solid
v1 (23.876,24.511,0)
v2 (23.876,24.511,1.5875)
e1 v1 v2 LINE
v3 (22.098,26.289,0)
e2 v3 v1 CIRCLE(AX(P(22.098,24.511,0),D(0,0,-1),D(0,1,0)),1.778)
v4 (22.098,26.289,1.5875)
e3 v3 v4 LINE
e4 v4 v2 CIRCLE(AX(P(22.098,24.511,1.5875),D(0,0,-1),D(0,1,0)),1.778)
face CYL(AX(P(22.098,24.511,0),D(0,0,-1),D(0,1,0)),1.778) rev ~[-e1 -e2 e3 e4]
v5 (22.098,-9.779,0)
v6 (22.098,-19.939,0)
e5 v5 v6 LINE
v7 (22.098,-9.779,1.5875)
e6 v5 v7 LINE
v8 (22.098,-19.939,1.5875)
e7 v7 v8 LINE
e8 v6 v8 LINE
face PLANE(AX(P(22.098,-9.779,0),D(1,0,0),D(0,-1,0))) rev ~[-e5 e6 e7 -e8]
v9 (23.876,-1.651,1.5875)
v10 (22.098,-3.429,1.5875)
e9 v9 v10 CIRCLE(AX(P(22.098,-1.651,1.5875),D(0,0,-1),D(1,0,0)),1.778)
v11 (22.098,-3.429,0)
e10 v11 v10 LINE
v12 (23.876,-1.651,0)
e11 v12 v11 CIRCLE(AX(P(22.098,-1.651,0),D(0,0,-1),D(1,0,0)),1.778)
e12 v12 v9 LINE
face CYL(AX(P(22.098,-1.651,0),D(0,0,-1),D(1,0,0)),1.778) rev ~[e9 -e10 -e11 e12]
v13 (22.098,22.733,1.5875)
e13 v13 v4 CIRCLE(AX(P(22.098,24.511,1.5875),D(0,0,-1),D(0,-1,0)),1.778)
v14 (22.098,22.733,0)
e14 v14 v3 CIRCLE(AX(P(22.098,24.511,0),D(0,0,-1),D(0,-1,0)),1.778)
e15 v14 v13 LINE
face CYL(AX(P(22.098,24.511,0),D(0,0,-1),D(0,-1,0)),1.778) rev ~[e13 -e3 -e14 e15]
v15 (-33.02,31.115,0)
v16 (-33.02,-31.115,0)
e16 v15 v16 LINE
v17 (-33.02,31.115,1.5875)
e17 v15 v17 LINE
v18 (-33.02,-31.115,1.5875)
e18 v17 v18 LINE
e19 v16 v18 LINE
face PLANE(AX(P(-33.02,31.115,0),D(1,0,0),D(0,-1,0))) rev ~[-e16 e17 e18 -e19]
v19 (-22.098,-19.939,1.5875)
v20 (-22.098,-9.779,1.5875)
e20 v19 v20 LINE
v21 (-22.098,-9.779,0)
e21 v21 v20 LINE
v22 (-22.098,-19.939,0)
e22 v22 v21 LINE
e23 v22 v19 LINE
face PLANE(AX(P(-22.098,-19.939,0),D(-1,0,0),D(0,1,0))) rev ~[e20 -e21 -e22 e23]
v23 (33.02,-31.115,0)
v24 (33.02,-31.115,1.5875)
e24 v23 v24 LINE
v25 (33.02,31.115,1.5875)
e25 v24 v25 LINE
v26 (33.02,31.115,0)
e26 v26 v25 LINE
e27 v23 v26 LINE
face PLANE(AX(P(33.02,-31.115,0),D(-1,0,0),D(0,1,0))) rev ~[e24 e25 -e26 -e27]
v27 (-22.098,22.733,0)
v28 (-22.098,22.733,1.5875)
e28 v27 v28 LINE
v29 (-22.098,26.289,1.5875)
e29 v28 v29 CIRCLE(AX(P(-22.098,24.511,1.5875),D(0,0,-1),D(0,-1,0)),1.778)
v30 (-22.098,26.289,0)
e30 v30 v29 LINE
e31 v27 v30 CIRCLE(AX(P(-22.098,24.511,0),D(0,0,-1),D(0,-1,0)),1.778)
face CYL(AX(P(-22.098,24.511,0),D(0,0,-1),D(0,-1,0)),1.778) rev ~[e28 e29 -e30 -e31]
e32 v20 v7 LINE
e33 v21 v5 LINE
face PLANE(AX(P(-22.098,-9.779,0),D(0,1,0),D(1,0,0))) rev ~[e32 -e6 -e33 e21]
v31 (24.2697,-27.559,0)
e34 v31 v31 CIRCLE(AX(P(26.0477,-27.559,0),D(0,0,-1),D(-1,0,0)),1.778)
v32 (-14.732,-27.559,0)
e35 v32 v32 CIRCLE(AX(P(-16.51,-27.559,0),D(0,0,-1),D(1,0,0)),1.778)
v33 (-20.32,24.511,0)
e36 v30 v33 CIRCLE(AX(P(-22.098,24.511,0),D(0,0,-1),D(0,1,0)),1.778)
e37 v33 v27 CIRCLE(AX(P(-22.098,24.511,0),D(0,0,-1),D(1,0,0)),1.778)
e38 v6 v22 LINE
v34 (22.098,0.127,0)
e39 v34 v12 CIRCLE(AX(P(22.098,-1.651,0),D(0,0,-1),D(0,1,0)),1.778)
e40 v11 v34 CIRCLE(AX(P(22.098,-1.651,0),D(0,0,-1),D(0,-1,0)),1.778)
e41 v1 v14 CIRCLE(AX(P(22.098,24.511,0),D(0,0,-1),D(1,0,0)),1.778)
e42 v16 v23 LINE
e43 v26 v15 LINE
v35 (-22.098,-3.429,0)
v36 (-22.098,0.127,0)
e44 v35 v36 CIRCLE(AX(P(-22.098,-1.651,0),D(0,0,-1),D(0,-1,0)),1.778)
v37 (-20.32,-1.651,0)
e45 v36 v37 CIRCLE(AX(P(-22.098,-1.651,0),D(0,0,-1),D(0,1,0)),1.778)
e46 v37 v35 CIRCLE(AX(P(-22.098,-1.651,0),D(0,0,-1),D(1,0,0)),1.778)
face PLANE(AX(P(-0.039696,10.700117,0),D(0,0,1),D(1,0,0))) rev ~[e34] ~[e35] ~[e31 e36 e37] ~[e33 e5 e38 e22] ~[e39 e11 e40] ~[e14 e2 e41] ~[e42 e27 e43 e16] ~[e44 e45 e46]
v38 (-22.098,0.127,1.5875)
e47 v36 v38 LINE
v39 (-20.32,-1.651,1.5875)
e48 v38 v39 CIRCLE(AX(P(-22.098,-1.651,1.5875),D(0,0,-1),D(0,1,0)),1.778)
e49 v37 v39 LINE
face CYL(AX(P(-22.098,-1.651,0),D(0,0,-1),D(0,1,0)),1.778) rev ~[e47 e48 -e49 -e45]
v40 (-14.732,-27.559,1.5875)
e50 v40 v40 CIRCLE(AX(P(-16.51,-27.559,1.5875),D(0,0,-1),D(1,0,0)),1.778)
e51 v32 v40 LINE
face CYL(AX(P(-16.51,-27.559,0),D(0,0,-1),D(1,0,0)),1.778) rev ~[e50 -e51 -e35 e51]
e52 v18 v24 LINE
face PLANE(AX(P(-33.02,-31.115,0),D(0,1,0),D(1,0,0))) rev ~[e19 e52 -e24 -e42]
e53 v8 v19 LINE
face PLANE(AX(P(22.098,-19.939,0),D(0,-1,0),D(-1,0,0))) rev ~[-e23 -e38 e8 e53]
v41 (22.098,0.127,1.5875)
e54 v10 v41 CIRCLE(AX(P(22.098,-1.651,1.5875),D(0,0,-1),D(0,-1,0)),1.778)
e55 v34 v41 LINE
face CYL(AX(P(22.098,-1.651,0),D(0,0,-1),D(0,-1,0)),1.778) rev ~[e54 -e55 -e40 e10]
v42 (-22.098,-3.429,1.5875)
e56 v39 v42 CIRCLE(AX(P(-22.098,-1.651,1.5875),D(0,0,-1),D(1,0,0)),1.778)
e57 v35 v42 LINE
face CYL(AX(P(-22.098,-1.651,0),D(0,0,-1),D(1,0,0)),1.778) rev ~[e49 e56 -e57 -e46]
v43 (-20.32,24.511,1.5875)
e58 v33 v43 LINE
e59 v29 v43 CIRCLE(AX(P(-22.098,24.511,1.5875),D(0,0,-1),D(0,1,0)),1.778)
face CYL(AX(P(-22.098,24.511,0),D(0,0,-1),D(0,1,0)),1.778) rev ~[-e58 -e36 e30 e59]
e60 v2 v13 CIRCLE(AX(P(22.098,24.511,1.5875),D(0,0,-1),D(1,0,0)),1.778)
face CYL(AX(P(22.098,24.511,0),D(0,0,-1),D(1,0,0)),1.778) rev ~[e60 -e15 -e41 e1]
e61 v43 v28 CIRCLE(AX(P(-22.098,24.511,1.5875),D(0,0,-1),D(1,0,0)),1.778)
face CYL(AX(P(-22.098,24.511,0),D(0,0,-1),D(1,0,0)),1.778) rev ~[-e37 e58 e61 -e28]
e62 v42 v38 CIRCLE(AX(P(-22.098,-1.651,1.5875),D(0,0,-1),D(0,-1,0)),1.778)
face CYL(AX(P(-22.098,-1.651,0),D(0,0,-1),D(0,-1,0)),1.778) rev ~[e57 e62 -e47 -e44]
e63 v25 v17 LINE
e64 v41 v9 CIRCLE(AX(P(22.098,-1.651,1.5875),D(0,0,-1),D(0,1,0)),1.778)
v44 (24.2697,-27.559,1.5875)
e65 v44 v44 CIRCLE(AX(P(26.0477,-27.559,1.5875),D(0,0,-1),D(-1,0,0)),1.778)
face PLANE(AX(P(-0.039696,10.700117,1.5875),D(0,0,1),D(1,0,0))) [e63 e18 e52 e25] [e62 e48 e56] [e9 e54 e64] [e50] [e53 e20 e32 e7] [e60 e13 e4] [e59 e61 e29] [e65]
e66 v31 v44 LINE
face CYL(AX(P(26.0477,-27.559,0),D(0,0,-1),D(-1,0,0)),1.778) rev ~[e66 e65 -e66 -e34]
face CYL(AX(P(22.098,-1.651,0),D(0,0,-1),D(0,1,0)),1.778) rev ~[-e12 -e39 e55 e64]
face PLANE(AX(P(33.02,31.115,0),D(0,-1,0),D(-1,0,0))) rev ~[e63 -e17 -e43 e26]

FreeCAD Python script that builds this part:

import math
import FreeCAD as App
import Part
import Sketcher
Q = App.Units.Quantity


def add_polygon(sketch, points):
    """Adds a closed chain of lines whose ends are joined by coincident constraints."""
    first, n = sketch.GeometryCount, len(points)
    for a, b in zip(points, points[1:] + points[:1]):
        sketch.addGeometry(Part.LineSegment(App.Vector(*a, 0), App.Vector(*b, 0)), False)
    for i in range(n):
        sketch.addConstraint(Sketcher.Constraint("Coincident", first + i, 2, first + (i + 1) % n, 1))

doc = App.newDocument("Part")
params = doc.addObject("Spreadsheet::Sheet", "Params")
for row, (alias, value) in enumerate([
    ("sketch1_diameter", "0.14 in"),
    ("sketch1_width", "2.6 in"),
    ("sketch1_height", "0.4 in"),
    ("sketch1_width2", "1.74 in"),
    ("sketch1_height2", "2.45 in"),
    ("pad1_length", "0.0625 in"),
], start=1):
    params.set(f"A{row}", alias)
    params.set(f"B{row}", "=" + value)
    params.setAlias(f"B{row}", alias)

body = doc.addObject("PartDesign::Body", "Body")

# Sketch on XY plane
sketch1 = doc.addObject("Sketcher::SketchObject", "Sketch")
body.addObject(sketch1)
sketch1.AttachmentSupport = (doc.XY_Plane, [""])
sketch1.MapMode = "FlatFace"
add_polygon(sketch1, [(-33.02, 31.115), (-33.02, -31.115), (33.02, -31.115), (33.02, 31.115)])  # lines 0-3
sketch1.addGeometry(Part.ArcOfCircle(Part.Circle(App.Vector(22.098, 24.511, 0), App.Vector(0, 0, 1), 1.778), math.radians(90), math.radians(270)), False)  # 4
sketch1.addGeometry(Part.ArcOfCircle(Part.Circle(App.Vector(22.098, 24.511, 0), App.Vector(0, 0, 1), 1.778), math.radians(0), math.radians(90)), False)  # 5
sketch1.addGeometry(Part.ArcOfCircle(Part.Circle(App.Vector(22.098, 24.511, 0), App.Vector(0, 0, 1), 1.778), math.radians(-90), math.radians(0)), False)  # 6
sketch1.addGeometry(Part.ArcOfCircle(Part.Circle(App.Vector(22.098, -1.651, 0), App.Vector(0, 0, 1), 1.778), math.radians(90), math.radians(270)), False)  # 7
sketch1.addGeometry(Part.ArcOfCircle(Part.Circle(App.Vector(22.098, -1.651, 0), App.Vector(0, 0, 1), 1.778), math.radians(0), math.radians(90)), False)  # 8
sketch1.addGeometry(Part.ArcOfCircle(Part.Circle(App.Vector(22.098, -1.651, 0), App.Vector(0, 0, 1), 1.778), math.radians(-90), math.radians(0)), False)  # 9
add_polygon(sketch1, [(-22.098, -9.779), (22.098, -9.779), (22.098, -19.939), (-22.098, -19.939)])  # lines 10-13
sketch1.addGeometry(Part.Circle(App.Vector(26.0477, -27.559, 0), App.Vector(0, 0, 1), 1.778), False)  # 14
sketch1.addGeometry(Part.ArcOfCircle(Part.Circle(App.Vector(-22.098, -1.651, 0), App.Vector(0, 0, 1), 1.778), math.radians(0), math.radians(90)), False)  # 15
sketch1.addGeometry(Part.ArcOfCircle(Part.Circle(App.Vector(-22.098, -1.651, 0), App.Vector(0, 0, 1), 1.778), math.radians(-90), math.radians(0)), False)  # 16
sketch1.addGeometry(Part.ArcOfCircle(Part.Circle(App.Vector(-22.098, -1.651, 0), App.Vector(0, 0, 1), 1.778), math.radians(90), math.radians(270)), False)  # 17
sketch1.addGeometry(Part.Circle(App.Vector(-16.51, -27.559, 0), App.Vector(0, 0, 1), 1.778), False)  # 18
sketch1.addGeometry(Part.ArcOfCircle(Part.Circle(App.Vector(-22.098, 24.511, 0), App.Vector(0, 0, 1), 1.778), math.radians(0), math.radians(90)), False)  # 19
sketch1.addGeometry(Part.ArcOfCircle(Part.Circle(App.Vector(-22.098, 24.511, 0), App.Vector(0, 0, 1), 1.778), math.radians(-90), math.radians(0)), False)  # 20
sketch1.addGeometry(Part.ArcOfCircle(Part.Circle(App.Vector(-22.098, 24.511, 0), App.Vector(0, 0, 1), 1.778), math.radians(90), math.radians(270)), False)  # 21
sketch1.addConstraint(Sketcher.Constraint("Tangent", 4, 1, 5, 2))
sketch1.addConstraint(Sketcher.Constraint("Tangent", 5, 1, 6, 2))
sketch1.addConstraint(Sketcher.Constraint("Tangent", 6, 1, 4, 2))
sketch1.addConstraint(Sketcher.Constraint("Tangent", 7, 1, 8, 2))
sketch1.addConstraint(Sketcher.Constraint("Tangent", 8, 1, 9, 2))
sketch1.addConstraint(Sketcher.Constraint("Tangent", 9, 1, 7, 2))
sketch1.addConstraint(Sketcher.Constraint("Tangent", 15, 1, 16, 2))
sketch1.addConstraint(Sketcher.Constraint("Tangent", 16, 1, 17, 2))
sketch1.addConstraint(Sketcher.Constraint("Tangent", 17, 1, 15, 2))
sketch1.addConstraint(Sketcher.Constraint("Tangent", 19, 1, 20, 2))
sketch1.addConstraint(Sketcher.Constraint("Tangent", 20, 1, 21, 2))
sketch1.addConstraint(Sketcher.Constraint("Tangent", 21, 1, 19, 2))
sketch1.addConstraint(Sketcher.Constraint("Vertical", 0))
sketch1.addConstraint(Sketcher.Constraint("Horizontal", 1))
sketch1.addConstraint(Sketcher.Constraint("Vertical", 2))
sketch1.addConstraint(Sketcher.Constraint("Horizontal", 3))
sketch1.addConstraint(Sketcher.Constraint("Horizontal", 10))
sketch1.addConstraint(Sketcher.Constraint("Vertical", 11))
sketch1.addConstraint(Sketcher.Constraint("Horizontal", 12))
sketch1.addConstraint(Sketcher.Constraint("Vertical", 13))
sketch1.addConstraint(Sketcher.Constraint("Equal", 6, 7))
sketch1.addConstraint(Sketcher.Constraint("Equal", 9, 14))
sketch1.addConstraint(Sketcher.Constraint("Equal", 14, 15))
sketch1.addConstraint(Sketcher.Constraint("Equal", 17, 18))
sketch1.addConstraint(Sketcher.Constraint("Equal", 18, 19))
sketch1.addConstraint(Sketcher.Constraint("Symmetric", 0, 2, 2, 2, -1, 1))
sketch1.addConstraint(Sketcher.Constraint("Symmetric", 7, 3, 15, 3, -2))
sketch1.addConstraint(Sketcher.Constraint("Symmetric", 4, 3, 19, 3, -2))
sketch1.addConstraint(Sketcher.Constraint("Horizontal", 14, 3, 18, 3))
sketch1.addConstraint(Sketcher.Constraint("Horizontal", 21, 3, 5, 1))
sketch1.addConstraint(Sketcher.Constraint("Horizontal", 17, 3, 8, 1))
sketch1.addConstraint(Sketcher.Constraint("Horizontal", 8, 1, 15, 1))
sketch1.addConstraint(Sketcher.Constraint("Horizontal", 5, 1, 19, 1))
sketch1.addConstraint(Sketcher.Constraint("Vertical", 6, 3, 7, 3))
sketch1.addConstraint(Sketcher.Constraint("Vertical", 9, 3, 4, 1))
sketch1.addConstraint(Sketcher.Constraint("Vertical", 4, 1, 6, 1))
sketch1.addConstraint(Sketcher.Constraint("Vertical", 6, 1, 7, 1))
sketch1.addConstraint(Sketcher.Constraint("Vertical", 7, 1, 9, 1))
sketch1.addConstraint(Sketcher.Constraint("Vertical", 9, 1, 10, 2))
sketch1.addConstraint(Sketcher.Constraint("Vertical", 21, 3, 12, 2))
sketch1.addConstraint(Sketcher.Constraint("Vertical", 13, 2, 16, 1))
sketch1.addConstraint(Sketcher.Constraint("Vertical", 16, 1, 17, 1))
sketch1.addConstraint(Sketcher.Constraint("Vertical", 17, 1, 20, 1))
sketch1.addConstraint(Sketcher.Constraint("Vertical", 20, 1, 21, 1))
sketch1.addConstraint(Sketcher.Constraint("Diameter", 14, Q("0.14 in")))
sketch1.addConstraint(Sketcher.Constraint("DistanceX", 1, 1, 1, 2, Q("2.6 in")))
sketch1.addConstraint(Sketcher.Constraint("DistanceY", 11, 2, 11, 1, Q("0.4 in")))
sketch1.addConstraint(Sketcher.Constraint("DistanceX", 10, 1, 10, 2, Q("1.74 in")))
sketch1.addConstraint(Sketcher.Constraint("DistanceY", 0, 2, 0, 1, Q("2.45 in")))
sketch1.addConstraint(Sketcher.Constraint("DistanceY", 7, 3, 4, 1, Q("1.1 in")))
sketch1.addConstraint(Sketcher.Constraint("DistanceY", 14, 3, 11, 2, Q("0.3 in")))
sketch1.addConstraint(Sketcher.Constraint("DistanceX", 18, 3, -1, 1, Q("0.65 in")))
sketch1.addConstraint(Sketcher.Constraint("DistanceY", 14, 3, 7, 3, Q("1.02 in")))
sketch1.addConstraint(Sketcher.Constraint("DistanceY", 0, 2, 18, 3, Q("0.14 in")))
sketch1.addConstraint(Sketcher.Constraint("DistanceX", -1, 1, 14, 3, Q("1.0255 in")))
sketch1.setExpression("Constraints[52]", "Params.sketch1_diameter")
sketch1.setExpression("Constraints[53]", "Params.sketch1_width")
sketch1.setExpression("Constraints[54]", "Params.sketch1_height")
sketch1.setExpression("Constraints[55]", "Params.sketch1_width2")
sketch1.setExpression("Constraints[56]", "Params.sketch1_height2")
pad1 = doc.addObject("PartDesign::Pad", "Pad")
body.addObject(pad1)
pad1.Profile = sketch1
pad1.setExpression("Length", "Params.pad1_length")

doc.recompute()
